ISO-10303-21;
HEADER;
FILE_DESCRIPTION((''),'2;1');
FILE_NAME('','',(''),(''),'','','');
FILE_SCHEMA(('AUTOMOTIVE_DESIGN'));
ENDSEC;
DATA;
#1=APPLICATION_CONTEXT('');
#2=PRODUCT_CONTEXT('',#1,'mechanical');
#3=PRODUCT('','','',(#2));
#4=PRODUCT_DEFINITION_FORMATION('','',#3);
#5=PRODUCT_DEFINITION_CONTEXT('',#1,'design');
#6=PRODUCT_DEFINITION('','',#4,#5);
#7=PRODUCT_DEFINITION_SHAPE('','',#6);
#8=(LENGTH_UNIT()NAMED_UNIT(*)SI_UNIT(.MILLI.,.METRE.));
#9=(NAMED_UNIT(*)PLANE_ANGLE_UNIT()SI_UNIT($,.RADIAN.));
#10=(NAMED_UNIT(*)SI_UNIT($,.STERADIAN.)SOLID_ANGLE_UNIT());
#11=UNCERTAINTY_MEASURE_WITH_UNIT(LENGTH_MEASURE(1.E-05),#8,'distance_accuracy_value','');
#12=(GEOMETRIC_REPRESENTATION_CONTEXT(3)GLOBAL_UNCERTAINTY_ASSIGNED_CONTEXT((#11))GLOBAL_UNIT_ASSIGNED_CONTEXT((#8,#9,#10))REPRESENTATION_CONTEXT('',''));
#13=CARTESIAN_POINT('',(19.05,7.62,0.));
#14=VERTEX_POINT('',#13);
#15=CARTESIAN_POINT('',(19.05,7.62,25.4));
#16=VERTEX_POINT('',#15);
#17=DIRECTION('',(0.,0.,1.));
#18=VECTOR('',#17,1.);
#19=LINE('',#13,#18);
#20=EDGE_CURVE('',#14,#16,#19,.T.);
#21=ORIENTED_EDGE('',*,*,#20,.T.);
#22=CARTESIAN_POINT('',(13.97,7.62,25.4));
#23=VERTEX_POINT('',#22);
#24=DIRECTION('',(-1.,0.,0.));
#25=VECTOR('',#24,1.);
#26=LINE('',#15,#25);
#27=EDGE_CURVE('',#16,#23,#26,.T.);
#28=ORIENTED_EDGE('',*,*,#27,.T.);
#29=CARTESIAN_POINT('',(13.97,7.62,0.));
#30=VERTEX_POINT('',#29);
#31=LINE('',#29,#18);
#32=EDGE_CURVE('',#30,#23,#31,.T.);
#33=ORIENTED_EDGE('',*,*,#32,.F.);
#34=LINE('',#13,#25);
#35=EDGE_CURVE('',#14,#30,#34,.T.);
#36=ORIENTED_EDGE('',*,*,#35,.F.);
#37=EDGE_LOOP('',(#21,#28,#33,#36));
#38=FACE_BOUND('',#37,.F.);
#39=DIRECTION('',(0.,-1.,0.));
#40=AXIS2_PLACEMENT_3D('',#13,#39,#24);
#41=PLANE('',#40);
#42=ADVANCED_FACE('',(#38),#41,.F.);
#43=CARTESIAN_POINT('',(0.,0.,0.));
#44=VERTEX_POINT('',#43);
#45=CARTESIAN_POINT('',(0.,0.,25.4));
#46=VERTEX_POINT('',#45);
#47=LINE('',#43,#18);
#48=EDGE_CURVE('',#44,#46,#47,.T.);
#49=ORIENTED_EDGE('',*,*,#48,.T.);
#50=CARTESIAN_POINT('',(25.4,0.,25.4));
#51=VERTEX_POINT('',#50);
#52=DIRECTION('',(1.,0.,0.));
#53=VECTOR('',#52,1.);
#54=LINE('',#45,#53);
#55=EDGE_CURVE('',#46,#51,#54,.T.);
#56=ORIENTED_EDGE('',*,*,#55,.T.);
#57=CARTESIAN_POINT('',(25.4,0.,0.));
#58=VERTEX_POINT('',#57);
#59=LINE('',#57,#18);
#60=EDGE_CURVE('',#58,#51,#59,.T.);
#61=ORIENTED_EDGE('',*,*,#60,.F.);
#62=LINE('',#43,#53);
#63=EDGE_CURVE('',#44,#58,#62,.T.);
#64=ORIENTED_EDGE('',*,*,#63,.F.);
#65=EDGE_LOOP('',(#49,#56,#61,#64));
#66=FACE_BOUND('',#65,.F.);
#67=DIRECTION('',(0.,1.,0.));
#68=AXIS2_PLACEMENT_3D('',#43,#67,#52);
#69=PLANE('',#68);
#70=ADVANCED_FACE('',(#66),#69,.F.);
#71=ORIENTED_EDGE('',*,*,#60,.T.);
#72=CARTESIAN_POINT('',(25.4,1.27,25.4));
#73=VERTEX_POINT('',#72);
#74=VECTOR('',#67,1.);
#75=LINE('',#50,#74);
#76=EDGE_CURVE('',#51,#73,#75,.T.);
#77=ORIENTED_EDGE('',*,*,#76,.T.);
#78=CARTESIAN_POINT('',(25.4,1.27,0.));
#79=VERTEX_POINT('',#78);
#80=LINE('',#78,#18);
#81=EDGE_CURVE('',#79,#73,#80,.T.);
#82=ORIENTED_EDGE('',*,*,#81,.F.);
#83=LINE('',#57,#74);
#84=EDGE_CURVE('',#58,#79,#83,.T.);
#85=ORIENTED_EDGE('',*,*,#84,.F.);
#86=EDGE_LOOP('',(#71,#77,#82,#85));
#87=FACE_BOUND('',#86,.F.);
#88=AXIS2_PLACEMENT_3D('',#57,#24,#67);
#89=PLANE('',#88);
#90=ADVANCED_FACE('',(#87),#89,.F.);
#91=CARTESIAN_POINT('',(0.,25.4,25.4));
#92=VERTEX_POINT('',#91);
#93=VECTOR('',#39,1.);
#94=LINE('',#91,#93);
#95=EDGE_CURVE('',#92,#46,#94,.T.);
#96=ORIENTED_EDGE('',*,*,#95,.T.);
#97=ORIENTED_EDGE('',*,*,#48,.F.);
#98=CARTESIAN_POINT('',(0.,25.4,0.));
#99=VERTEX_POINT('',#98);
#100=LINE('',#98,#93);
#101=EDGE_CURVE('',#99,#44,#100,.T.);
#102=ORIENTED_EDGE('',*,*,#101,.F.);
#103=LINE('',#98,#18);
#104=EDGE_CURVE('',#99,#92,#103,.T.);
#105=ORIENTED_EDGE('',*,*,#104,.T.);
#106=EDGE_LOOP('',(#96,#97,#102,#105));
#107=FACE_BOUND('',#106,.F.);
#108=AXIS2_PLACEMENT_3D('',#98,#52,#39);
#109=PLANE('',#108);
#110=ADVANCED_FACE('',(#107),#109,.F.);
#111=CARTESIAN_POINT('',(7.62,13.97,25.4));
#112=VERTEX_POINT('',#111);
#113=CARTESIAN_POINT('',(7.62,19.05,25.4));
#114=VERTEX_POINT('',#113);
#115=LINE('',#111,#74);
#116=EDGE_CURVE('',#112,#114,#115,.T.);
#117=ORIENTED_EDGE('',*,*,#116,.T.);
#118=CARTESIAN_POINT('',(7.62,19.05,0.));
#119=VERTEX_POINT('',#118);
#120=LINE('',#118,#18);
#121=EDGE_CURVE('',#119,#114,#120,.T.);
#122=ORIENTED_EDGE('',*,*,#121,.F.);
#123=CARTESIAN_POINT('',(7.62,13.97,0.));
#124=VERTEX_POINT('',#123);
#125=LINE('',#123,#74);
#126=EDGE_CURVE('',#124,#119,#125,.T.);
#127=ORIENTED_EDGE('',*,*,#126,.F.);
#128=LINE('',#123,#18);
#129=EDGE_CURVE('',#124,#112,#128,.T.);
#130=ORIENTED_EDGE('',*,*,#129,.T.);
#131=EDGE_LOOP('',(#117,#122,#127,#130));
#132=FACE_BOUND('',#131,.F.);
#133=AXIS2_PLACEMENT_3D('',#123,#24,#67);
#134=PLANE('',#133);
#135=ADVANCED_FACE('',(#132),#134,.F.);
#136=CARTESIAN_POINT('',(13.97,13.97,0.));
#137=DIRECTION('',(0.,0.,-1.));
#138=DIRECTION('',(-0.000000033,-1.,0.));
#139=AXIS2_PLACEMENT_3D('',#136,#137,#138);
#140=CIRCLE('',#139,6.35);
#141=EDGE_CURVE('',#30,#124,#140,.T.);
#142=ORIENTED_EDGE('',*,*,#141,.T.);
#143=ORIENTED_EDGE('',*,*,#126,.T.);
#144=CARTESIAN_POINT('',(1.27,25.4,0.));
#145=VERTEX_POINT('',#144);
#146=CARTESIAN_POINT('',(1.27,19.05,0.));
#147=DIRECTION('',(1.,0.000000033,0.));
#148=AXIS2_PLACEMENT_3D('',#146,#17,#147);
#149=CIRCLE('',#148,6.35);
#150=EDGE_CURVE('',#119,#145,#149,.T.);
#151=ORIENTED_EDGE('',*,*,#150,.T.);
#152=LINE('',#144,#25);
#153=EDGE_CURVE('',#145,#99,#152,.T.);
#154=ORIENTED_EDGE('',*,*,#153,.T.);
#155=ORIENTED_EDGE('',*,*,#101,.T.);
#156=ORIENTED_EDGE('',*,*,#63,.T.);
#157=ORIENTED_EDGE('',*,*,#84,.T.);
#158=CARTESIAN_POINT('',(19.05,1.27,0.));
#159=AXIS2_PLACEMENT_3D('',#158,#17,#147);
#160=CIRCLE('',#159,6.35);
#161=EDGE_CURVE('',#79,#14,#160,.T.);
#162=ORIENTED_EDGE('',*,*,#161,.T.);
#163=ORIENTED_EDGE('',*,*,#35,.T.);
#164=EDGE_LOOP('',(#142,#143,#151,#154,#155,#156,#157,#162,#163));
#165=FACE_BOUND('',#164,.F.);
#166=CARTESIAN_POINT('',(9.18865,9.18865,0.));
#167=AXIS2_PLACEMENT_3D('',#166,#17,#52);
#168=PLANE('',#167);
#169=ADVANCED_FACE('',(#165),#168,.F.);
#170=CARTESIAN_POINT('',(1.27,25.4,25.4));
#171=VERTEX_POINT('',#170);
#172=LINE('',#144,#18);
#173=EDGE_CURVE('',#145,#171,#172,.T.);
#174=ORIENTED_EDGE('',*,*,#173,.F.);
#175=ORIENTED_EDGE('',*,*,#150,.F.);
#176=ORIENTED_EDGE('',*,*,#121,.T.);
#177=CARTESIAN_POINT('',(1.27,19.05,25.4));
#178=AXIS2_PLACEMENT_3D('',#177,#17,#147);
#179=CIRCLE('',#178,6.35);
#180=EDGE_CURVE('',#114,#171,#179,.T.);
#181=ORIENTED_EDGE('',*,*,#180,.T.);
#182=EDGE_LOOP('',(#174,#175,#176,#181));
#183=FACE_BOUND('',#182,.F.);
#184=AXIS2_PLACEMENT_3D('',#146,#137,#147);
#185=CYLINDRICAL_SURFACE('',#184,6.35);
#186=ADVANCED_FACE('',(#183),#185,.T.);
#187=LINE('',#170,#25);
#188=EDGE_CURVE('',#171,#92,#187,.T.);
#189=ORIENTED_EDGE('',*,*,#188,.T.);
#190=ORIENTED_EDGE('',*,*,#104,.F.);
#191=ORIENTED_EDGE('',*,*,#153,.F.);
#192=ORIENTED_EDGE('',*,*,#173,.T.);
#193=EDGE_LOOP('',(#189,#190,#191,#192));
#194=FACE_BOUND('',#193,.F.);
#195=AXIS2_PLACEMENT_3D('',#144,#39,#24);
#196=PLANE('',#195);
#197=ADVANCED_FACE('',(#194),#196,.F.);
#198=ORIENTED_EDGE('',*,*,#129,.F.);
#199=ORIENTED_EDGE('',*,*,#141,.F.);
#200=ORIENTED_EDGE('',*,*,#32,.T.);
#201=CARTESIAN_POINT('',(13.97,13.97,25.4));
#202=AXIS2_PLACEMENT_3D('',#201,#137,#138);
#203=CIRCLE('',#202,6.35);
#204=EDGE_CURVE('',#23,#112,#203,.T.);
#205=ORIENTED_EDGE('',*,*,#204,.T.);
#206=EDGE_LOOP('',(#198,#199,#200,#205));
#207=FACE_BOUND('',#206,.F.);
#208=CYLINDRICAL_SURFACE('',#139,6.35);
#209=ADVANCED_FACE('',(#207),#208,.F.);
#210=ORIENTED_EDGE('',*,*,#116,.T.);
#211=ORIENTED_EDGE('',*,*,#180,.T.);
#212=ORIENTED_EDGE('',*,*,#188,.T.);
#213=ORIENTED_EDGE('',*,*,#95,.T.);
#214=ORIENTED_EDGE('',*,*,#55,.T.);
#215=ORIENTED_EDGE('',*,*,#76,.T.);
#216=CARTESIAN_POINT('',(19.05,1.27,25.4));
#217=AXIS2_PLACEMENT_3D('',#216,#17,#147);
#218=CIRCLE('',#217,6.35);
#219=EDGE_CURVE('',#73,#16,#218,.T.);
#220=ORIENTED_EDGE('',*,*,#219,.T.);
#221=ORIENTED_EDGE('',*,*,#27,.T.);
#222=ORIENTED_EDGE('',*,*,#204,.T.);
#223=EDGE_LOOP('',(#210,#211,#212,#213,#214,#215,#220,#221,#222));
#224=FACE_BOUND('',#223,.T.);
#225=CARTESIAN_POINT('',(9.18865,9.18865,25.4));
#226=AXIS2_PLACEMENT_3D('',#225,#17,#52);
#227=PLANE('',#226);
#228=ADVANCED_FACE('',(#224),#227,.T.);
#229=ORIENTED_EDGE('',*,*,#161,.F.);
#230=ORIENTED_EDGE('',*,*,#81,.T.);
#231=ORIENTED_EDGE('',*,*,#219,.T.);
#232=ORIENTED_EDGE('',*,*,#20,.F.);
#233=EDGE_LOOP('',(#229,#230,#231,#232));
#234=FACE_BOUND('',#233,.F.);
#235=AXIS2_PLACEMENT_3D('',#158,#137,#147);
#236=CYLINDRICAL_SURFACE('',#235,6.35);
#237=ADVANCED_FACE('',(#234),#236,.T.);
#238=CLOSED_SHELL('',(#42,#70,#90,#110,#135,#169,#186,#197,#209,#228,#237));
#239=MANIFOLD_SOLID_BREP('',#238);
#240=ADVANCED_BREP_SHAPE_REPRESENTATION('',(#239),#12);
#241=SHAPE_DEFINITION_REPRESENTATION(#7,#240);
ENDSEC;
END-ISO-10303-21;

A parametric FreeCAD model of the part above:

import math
import FreeCAD as App
import Part
import Sketcher

V = App.Vector
Q = App.Units.Quantity

doc = App.newDocument("Part")
body = doc.addObject("PartDesign::Body", "Body")

# Sketch on XY plane
sketch1 = body.newObject("Sketcher::SketchObject", "Sketch")
sketch1.AttachmentSupport = (doc.getObject("XY_Plane"), [""])
sketch1.MapMode = "FlatFace"
sketch1.addGeometry(Part.LineSegment(V(1.3, 25.4, 0), V(0, 25.4, 0)), False)
sketch1.addGeometry(Part.LineSegment(V(0, 25.4, 0), V(0, 0, 0)), False)
sketch1.addGeometry(Part.LineSegment(V(0, 0, 0), V(25.4, 0, 0)), False)
sketch1.addGeometry(Part.LineSegment(V(25.4, 0, 0), V(25.4, 1.3, 0)), False)
sketch1.addGeometry(Part.ArcOfCircle(Part.Circle(V(19, 1.3, 0), V(0, 0, 1), 6.4), math.radians(0), math.radians(90)), False)
sketch1.addGeometry(Part.LineSegment(V(19.1, 7.6, 0), V(14, 7.6, 0)), False)
sketch1.addGeometry(Part.ArcOfCircle(Part.Circle(V(14, 14, 0), V(0, 0, 1), 6.4), math.radians(-180), math.radians(-90)), False)
sketch1.addGeometry(Part.LineSegment(V(7.6, 14, 0), V(7.6, 19.1, 0)), False)
sketch1.addGeometry(Part.ArcOfCircle(Part.Circle(V(1.3, 19, 0), V(0, 0, 1), 6.4), math.radians(0), math.radians(90)), False)
sketch1.addConstraint(Sketcher.Constraint("Coincident", 0, 2, 1, 1))
sketch1.addConstraint(Sketcher.Constraint("Coincident", 1, 2, 2, 1))
sketch1.addConstraint(Sketcher.Constraint("Coincident", 2, 2, 3, 1))
sketch1.addConstraint(Sketcher.Constraint("Tangent", 3, 2, 4, 1))
sketch1.addConstraint(Sketcher.Constraint("Tangent", 4, 2, 5, 1))
sketch1.addConstraint(Sketcher.Constraint("Tangent", 5, 2, 6, 2))
sketch1.addConstraint(Sketcher.Constraint("Tangent", 6, 1, 7, 1))
sketch1.addConstraint(Sketcher.Constraint("Tangent", 7, 2, 8, 1))
sketch1.addConstraint(Sketcher.Constraint("Tangent", 8, 2, 0, 1))
sketch1.addConstraint(Sketcher.Constraint("Horizontal", 0))
sketch1.addConstraint(Sketcher.Constraint("Vertical", 1))
sketch1.addConstraint(Sketcher.Constraint("Horizontal", 2))
sketch1.addConstraint(Sketcher.Constraint("Vertical", 3))
sketch1.addConstraint(Sketcher.Constraint("Horizontal", 5))
sketch1.addConstraint(Sketcher.Constraint("Vertical", 7))
sketch1.addConstraint(Sketcher.Constraint("Coincident", 1, 2, -1, 1))
sketch1.addConstraint(Sketcher.Constraint("Equal", 4, 6))
sketch1.addConstraint(Sketcher.Constraint("Equal", 6, 8))
sketch1.addConstraint(Sketcher.Constraint("Equal", 2, 1))
sketch1.addConstraint(Sketcher.Constraint("Equal", 0, 3))
sketch1.addConstraint(Sketcher.Constraint("DistanceX", 2, 1, 2, 2, Q("1 in")))
sketch1.addConstraint(Sketcher.Constraint("Radius", 4, Q("0.25 in")))
sketch1.addConstraint(Sketcher.Constraint("DistanceX", 5, 2, 5, 1, Q("0.2 in")))
pad1 = body.newObject("PartDesign::Pad", "Pad")
pad1.Profile = sketch1
pad1.Length = Q("1 in")

doc.recompute()
